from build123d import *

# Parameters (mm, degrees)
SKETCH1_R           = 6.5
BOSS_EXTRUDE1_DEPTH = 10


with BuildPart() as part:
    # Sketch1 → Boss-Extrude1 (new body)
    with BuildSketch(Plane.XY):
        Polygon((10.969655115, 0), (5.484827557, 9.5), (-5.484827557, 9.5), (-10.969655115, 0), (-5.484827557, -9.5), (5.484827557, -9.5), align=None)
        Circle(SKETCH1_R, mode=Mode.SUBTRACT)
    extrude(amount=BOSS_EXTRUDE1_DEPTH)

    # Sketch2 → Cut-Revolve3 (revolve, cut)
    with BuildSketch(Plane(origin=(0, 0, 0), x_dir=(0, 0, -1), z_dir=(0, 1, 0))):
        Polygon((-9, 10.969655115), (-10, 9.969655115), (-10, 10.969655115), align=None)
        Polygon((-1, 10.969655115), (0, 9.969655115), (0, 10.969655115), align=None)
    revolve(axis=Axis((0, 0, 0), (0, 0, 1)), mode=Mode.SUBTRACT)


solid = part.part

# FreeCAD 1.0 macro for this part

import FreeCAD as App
import Part
import Sketcher
Q = App.Units.Quantity


def add_polygon(sketch, points):
    """Adds a closed chain of lines whose ends are joined by coincident constraints."""
    first, n = sketch.GeometryCount, len(points)
    for a, b in zip(points, points[1:] + points[:1]):
        sketch.addGeometry(Part.LineSegment(App.Vector(*a, 0), App.Vector(*b, 0)), False)
    for i in range(n):
        sketch.addConstraint(Sketcher.Constraint("Coincident", first + i, 2, first + (i + 1) % n, 1))

doc = App.newDocument("Part")
body = doc.addObject("PartDesign::Body", "Body")

sketch1 = body.newObject("Sketcher::SketchObject", "Sketch")
sketch1.AttachmentSupport = (doc.getObject("XY_Plane"), [""])
sketch1.MapMode = "FlatFace"
add_polygon(sketch1, [(11, 0), (5, 10), (-5, 10), (-11, 0), (-5, -10), (5, -10)])
sketch1.addGeometry(Part.Circle(App.Vector(0, 0, 0), App.Vector(0, 0, 1), 6), False)
sketch1.addConstraint(Sketcher.Constraint("Horizontal", 1))
sketch1.addConstraint(Sketcher.Constraint("Horizontal", 4))
sketch1.addConstraint(Sketcher.Constraint("Coincident", 6, 3, -1, 1))
sketch1.addConstraint(Sketcher.Constraint("Symmetric", 0, 2, 3, 2, -1, 1))
sketch1.addConstraint(Sketcher.Constraint("Symmetric", 2, 2, 5, 2, -1, 1))
sketch1.addConstraint(Sketcher.Constraint("PointOnObject", 2, 2, -1))
sketch1.addConstraint(Sketcher.Constraint("Parallel", 2, 5))
sketch1.addConstraint(Sketcher.Constraint("Vertical", 1, 2, 3, 2))
sketch1.addConstraint(Sketcher.Constraint("Diameter", 6, Q("13 mm")))
sketch1.addConstraint(Sketcher.Constraint("Angle", 0, Q("120 deg")))
sketch1.addConstraint(Sketcher.Constraint("DistanceY", 3, 2, 1, 2, Q("19 mm")))
sketch1.addConstraint(Sketcher.Constraint("DistanceX", 1, 2, 1, 1, Q("10.969655 mm")))
pad1 = body.newObject("PartDesign::Pad", "Pad")
pad1.Profile = sketch1
pad1.Length = 10

sketch2 = body.newObject("Sketcher::SketchObject", "Sketch001")
sketch2.AttachmentSupport = (doc.getObject("XZ_Plane"), [""])
sketch2.MapMode = "FlatFace"
add_polygon(sketch2, [(-10, 10), (-11, 9), (-11, 10)])
add_polygon(sketch2, [(-11, 1), (-10, 0), (-11, 0)])
sketch2.addConstraint(Sketcher.Constraint("Vertical", 1))
sketch2.addConstraint(Sketcher.Constraint("Horizontal", 2))
sketch2.addConstraint(Sketcher.Constraint("Horizontal", 4))
sketch2.addConstraint(Sketcher.Constraint("Vertical", 5))
sketch2.addConstraint(Sketcher.Constraint("PointOnObject", 3, 2, -1))
sketch2.addConstraint(Sketcher.Constraint("Perpendicular", 0, 3))
sketch2.addConstraint(Sketcher.Constraint("Vertical", 2, 2, 3, 2))
sketch2.addConstraint(Sketcher.Constraint("Vertical", 1, 2, 4, 2))
sketch2.addConstraint(Sketcher.Constraint("Equal", 4, 1))
sketch2.addConstraint(Sketcher.Constraint("DistanceX", 2, 1, 2, 2, Q("1 mm")))
sketch2.addConstraint(Sketcher.Constraint("DistanceY", -1, 1, 0, 2, Q("9 mm")))
sketch2.addConstraint(Sketcher.Constraint("DistanceX", 0, 2, -1, 1, Q("10.969655 mm")))
groove = body.newObject("PartDesign::Groove", "Groove")
groove.Profile = sketch2
groove.ReferenceAxis = (sketch2, ["V_Axis"])
groove.Angle = 360

doc.recompute()
